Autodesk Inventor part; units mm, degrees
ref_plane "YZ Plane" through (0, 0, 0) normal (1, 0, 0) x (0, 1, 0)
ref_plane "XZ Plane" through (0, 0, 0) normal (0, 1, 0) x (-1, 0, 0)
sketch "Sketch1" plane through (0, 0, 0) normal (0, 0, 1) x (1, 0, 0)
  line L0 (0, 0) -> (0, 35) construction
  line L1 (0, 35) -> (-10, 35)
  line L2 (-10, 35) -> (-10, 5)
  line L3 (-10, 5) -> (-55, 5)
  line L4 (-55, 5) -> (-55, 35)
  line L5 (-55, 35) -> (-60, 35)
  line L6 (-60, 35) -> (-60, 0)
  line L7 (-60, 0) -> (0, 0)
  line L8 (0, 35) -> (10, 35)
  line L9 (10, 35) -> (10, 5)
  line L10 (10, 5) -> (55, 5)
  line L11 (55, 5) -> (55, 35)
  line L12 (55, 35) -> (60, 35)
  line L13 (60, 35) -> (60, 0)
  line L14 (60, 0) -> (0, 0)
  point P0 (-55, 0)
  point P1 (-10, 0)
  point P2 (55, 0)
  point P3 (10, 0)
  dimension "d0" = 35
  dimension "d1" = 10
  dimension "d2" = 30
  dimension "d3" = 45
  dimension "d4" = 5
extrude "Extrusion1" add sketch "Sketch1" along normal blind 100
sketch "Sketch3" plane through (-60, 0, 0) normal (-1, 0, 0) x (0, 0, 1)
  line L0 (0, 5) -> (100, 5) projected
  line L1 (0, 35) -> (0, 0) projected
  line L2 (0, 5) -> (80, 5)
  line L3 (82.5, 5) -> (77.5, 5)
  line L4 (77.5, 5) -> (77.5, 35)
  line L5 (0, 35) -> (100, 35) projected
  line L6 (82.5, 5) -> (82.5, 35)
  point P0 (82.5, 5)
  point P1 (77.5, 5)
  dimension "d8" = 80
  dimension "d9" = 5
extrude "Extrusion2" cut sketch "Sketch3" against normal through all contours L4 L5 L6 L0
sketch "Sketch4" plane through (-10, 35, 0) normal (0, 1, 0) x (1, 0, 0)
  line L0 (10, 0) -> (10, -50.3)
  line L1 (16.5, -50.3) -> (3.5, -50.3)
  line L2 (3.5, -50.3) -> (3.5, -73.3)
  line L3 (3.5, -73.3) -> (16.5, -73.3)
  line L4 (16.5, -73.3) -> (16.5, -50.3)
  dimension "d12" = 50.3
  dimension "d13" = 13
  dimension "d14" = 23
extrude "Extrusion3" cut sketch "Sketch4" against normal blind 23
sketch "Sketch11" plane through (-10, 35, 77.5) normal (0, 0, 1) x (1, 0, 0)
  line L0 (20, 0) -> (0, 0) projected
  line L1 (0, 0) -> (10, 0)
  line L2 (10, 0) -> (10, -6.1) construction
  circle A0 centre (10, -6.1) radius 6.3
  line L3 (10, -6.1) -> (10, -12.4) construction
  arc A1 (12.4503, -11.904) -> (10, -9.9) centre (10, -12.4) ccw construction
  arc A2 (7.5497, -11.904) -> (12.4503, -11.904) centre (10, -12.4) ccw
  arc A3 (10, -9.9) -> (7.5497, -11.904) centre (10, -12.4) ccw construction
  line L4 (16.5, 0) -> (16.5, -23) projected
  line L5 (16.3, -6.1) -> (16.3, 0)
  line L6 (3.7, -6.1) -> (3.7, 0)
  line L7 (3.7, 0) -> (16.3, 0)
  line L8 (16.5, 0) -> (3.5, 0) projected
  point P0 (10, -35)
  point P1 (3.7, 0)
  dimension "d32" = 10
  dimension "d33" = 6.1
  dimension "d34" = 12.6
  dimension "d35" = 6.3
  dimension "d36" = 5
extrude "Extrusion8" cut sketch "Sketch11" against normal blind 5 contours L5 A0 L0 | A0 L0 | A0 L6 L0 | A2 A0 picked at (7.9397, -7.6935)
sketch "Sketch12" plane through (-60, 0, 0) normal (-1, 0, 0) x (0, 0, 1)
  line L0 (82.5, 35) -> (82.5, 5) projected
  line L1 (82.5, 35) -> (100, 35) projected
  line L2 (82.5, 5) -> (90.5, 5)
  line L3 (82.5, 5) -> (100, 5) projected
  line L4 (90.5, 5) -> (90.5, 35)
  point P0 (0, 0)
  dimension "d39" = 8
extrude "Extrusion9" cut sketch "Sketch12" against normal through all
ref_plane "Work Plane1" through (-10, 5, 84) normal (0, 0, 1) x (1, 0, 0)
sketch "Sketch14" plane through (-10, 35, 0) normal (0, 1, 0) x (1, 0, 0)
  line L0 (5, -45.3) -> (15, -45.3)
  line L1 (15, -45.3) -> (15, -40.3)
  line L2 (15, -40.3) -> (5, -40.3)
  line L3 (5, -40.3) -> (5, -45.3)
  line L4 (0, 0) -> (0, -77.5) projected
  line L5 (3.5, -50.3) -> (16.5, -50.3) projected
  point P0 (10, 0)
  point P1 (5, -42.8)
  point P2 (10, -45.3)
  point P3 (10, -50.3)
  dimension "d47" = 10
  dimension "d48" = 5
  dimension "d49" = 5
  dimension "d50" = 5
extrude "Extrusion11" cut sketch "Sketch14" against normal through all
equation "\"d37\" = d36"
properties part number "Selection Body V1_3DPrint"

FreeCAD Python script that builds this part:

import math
import FreeCAD as App
import Part
import Sketcher
from FreeCAD import Vector

doc = App.newDocument("Part")
params = doc.addObject("Spreadsheet::Sheet", "Params")
for row, (alias, value) in enumerate([
    ("sketch1_width", "45 mm"),
    ("sketch1_width2", "5 mm"),
    ("sketch1_height", "30 mm"),
    ("sketch1_height2", "35 mm"),
    ("pad1_length", "100 mm"),
    ("sketch2_height", "5 mm"),
    ("sketch2_width", "30 mm"),
    ("sketch3_width", "13 mm"),
    ("sketch3_height", "23 mm"),
    ("pocket2_length", "23 mm"),
    ("sketch4_radius", "6.3 mm"),
    ("sketch4_radius2", "2.5 mm"),
    ("sketch4_height", "6.1 mm"),
    ("pocket3_length", "5 mm"),
    ("sketch5_height", "8 mm"),
    ("sketch5_width", "30 mm"),
    ("sketch6_width", "10 mm"),
    ("sketch6_height", "5 mm"),
], start=1):
    params.set(f"A{row}", alias)
    params.set(f"B{row}", "=" + value)
    params.setAlias(f"B{row}", alias)

body = doc.addObject("PartDesign::Body", "Body")

# Sketch on XY plane
sketch1 = body.newObject("Sketcher::SketchObject", "Sketch")
sketch1.AttachmentSupport = (doc.getObject("XY_Plane"), [""])
sketch1.MapMode = "FlatFace"
sketch1.addGeometry(Part.LineSegment(Vector(10, 35, 0), Vector(-10, 35, 0)), False)
sketch1.addGeometry(Part.LineSegment(Vector(-10, 35, 0), Vector(-10, 5, 0)), False)
sketch1.addGeometry(Part.LineSegment(Vector(-10, 5, 0), Vector(-55, 5, 0)), False)
sketch1.addGeometry(Part.LineSegment(Vector(-55, 5, 0), Vector(-55, 35, 0)), False)
sketch1.addGeometry(Part.LineSegment(Vector(-55, 35, 0), Vector(-60, 35, 0)), False)
sketch1.addGeometry(Part.LineSegment(Vector(-60, 35, 0), Vector(-60, 0, 0)), False)
sketch1.addGeometry(Part.LineSegment(Vector(-60, 0, 0), Vector(60, 0, 0)), False)
sketch1.addGeometry(Part.LineSegment(Vector(60, 0, 0), Vector(60, 35, 0)), False)
sketch1.addGeometry(Part.LineSegment(Vector(60, 35, 0), Vector(55, 35, 0)), False)
sketch1.addGeometry(Part.LineSegment(Vector(55, 35, 0), Vector(55, 5, 0)), False)
sketch1.addGeometry(Part.LineSegment(Vector(55, 5, 0), Vector(10, 5, 0)), False)
sketch1.addGeometry(Part.LineSegment(Vector(10, 5, 0), Vector(10, 35, 0)), False)
sketch1.addConstraint(Sketcher.Constraint("Coincident", 0, 2, 1, 1))
sketch1.addConstraint(Sketcher.Constraint("Coincident", 1, 2, 2, 1))
sketch1.addConstraint(Sketcher.Constraint("Coincident", 2, 2, 3, 1))
sketch1.addConstraint(Sketcher.Constraint("Coincident", 3, 2, 4, 1))
sketch1.addConstraint(Sketcher.Constraint("Coincident", 4, 2, 5, 1))
sketch1.addConstraint(Sketcher.Constraint("Coincident", 5, 2, 6, 1))
sketch1.addConstraint(Sketcher.Constraint("Coincident", 6, 2, 7, 1))
sketch1.addConstraint(Sketcher.Constraint("Coincident", 7, 2, 8, 1))
sketch1.addConstraint(Sketcher.Constraint("Coincident", 8, 2, 9, 1))
sketch1.addConstraint(Sketcher.Constraint("Coincident", 9, 2, 10, 1))
sketch1.addConstraint(Sketcher.Constraint("Coincident", 10, 2, 11, 1))
sketch1.addConstraint(Sketcher.Constraint("Coincident", 11, 2, 0, 1))
sketch1.addConstraint(Sketcher.Constraint("Horizontal", 0))
sketch1.addConstraint(Sketcher.Constraint("Vertical", 1))
sketch1.addConstraint(Sketcher.Constraint("Horizontal", 2))
sketch1.addConstraint(Sketcher.Constraint("Vertical", 3))
sketch1.addConstraint(Sketcher.Constraint("Horizontal", 4))
sketch1.addConstraint(Sketcher.Constraint("Vertical", 5))
sketch1.addConstraint(Sketcher.Constraint("Horizontal", 6))
sketch1.addConstraint(Sketcher.Constraint("Vertical", 7))
sketch1.addConstraint(Sketcher.Constraint("Horizontal", 8))
sketch1.addConstraint(Sketcher.Constraint("Vertical", 9))
sketch1.addConstraint(Sketcher.Constraint("Horizontal", 10))
sketch1.addConstraint(Sketcher.Constraint("Vertical", 11))
sketch1.addConstraint(Sketcher.Constraint("Symmetric", 5, 2, 6, 2, -1, 1))
sketch1.addConstraint(Sketcher.Constraint("Symmetric", 3, 2, 8, 2, -2))
sketch1.addConstraint(Sketcher.Constraint("Symmetric", 1, 2, 10, 2, -2))
sketch1.addConstraint(Sketcher.Constraint("Horizontal", 0, 2, 3, 2))
sketch1.addConstraint(Sketcher.Constraint("DistanceX", 2, 2, 2, 1, 45.0))
sketch1.addConstraint(Sketcher.Constraint("DistanceX", 4, 2, 4, 1, 5.0))
sketch1.addConstraint(Sketcher.Constraint("DistanceY", 1, 2, 1, 1, 30.0))
sketch1.addConstraint(Sketcher.Constraint("DistanceY", 5, 2, 5, 1, 35.0))
sketch1.addConstraint(Sketcher.Constraint("DistanceX", 0, 2, -1, 1, 10.0))
sketch1.setExpression("Constraints[28]", "Params.sketch1_width")
sketch1.setExpression("Constraints[29]", "Params.sketch1_width2")
sketch1.setExpression("Constraints[30]", "Params.sketch1_height")
sketch1.setExpression("Constraints[31]", "Params.sketch1_height2")
pad1 = body.newObject("PartDesign::Pad", "Pad")
pad1.Profile = sketch1
pad1.setExpression("Length", "Params.pad1_length")

# Sketch on YZ plane
sketch2 = body.newObject("Sketcher::SketchObject", "Sketch001")
sketch2.AttachmentSupport = (doc.getObject("YZ_Plane"), [""])
sketch2.MapMode = "FlatFace"
sketch2.AttachmentOffset = App.Placement(Vector(0, 0, -60), App.Rotation())
sketch2.addGeometry(Part.LineSegment(Vector(35, 77.5, 0), Vector(5, 77.5, 0)), False)
sketch2.addGeometry(Part.LineSegment(Vector(5, 77.5, 0), Vector(5, 82.5, 0)), False)
sketch2.addGeometry(Part.LineSegment(Vector(5, 82.5, 0), Vector(35, 82.5, 0)), False)
sketch2.addGeometry(Part.LineSegment(Vector(35, 82.5, 0), Vector(35, 77.5, 0)), False)
sketch2.addConstraint(Sketcher.Constraint("Coincident", 0, 2, 1, 1))
sketch2.addConstraint(Sketcher.Constraint("Coincident", 1, 2, 2, 1))
sketch2.addConstraint(Sketcher.Constraint("Coincident", 2, 2, 3, 1))
sketch2.addConstraint(Sketcher.Constraint("Coincident", 3, 2, 0, 1))
sketch2.addConstraint(Sketcher.Constraint("Horizontal", 0))
sketch2.addConstraint(Sketcher.Constraint("Vertical", 1))
sketch2.addConstraint(Sketcher.Constraint("Horizontal", 2))
sketch2.addConstraint(Sketcher.Constraint("Vertical", 3))
sketch2.addConstraint(Sketcher.Constraint("DistanceY", 1, 1, 1, 2, 5.0))
sketch2.addConstraint(Sketcher.Constraint("DistanceX", -1, 1, 0, 2, 5.0))
sketch2.addConstraint(Sketcher.Constraint("DistanceX", 0, 2, 0, 1, 30.0))
sketch2.addConstraint(Sketcher.Constraint("DistanceY", -1, 1, 0, 2, 77.5))
sketch2.setExpression("Constraints[8]", "Params.sketch2_height")
sketch2.setExpression("Constraints[10]", "Params.sketch2_width")
pocket1 = body.newObject("PartDesign::Pocket", "Pocket")
pocket1.Profile = sketch2
pocket1.Type = "ThroughAll"
pocket1.Reversed = True

# Sketch on XZ plane
sketch3 = body.newObject("Sketcher::SketchObject", "Sketch002")
sketch3.AttachmentSupport = (doc.getObject("XZ_Plane"), [""])
sketch3.MapMode = "FlatFace"
sketch3.AttachmentOffset = App.Placement(Vector(0, 0, -35), App.Rotation())
sketch3.addGeometry(Part.LineSegment(Vector(6.5, 73.3, 0), Vector(6.5, 50.3, 0)), False)
sketch3.addGeometry(Part.LineSegment(Vector(6.5, 50.3, 0), Vector(-6.5, 50.3, 0)), False)
sketch3.addGeometry(Part.LineSegment(Vector(-6.5, 50.3, 0), Vector(-6.5, 73.3, 0)), False)
sketch3.addGeometry(Part.LineSegment(Vector(-6.5, 73.3, 0), Vector(6.5, 73.3, 0)), False)
sketch3.addConstraint(Sketcher.Constraint("Coincident", 0, 2, 1, 1))
sketch3.addConstraint(Sketcher.Constraint("Coincident", 1, 2, 2, 1))
sketch3.addConstraint(Sketcher.Constraint("Coincident", 2, 2, 3, 1))
sketch3.addConstraint(Sketcher.Constraint("Coincident", 3, 2, 0, 1))
sketch3.addConstraint(Sketcher.Constraint("Vertical", 0))
sketch3.addConstraint(Sketcher.Constraint("Horizontal", 1))
sketch3.addConstraint(Sketcher.Constraint("Vertical", 2))
sketch3.addConstraint(Sketcher.Constraint("Horizontal", 3))
sketch3.addConstraint(Sketcher.Constraint("DistanceX", 1, 2, 1, 1, 13.0))
sketch3.addConstraint(Sketcher.Constraint("DistanceY", 0, 2, 0, 1, 23.0))
sketch3.addConstraint(Sketcher.Constraint("DistanceY", -1, 1, 0, 2, 50.3))
sketch3.addConstraint(Sketcher.Constraint("DistanceX", -1, 1, 0, 2, 6.5))
sketch3.setExpression("Constraints[8]", "Params.sketch3_width")
sketch3.setExpression("Constraints[9]", "Params.sketch3_height")
pocket2 = body.newObject("PartDesign::Pocket", "Pocket001")
pocket2.Profile = sketch3
pocket2.setExpression("Length", "Params.pocket2_length")
pocket2.Reversed = True

# Sketch on XY plane
sketch4 = body.newObject("Sketcher::SketchObject", "Sketch003")
sketch4.AttachmentSupport = (doc.getObject("XY_Plane"), [""])
sketch4.MapMode = "FlatFace"
sketch4.AttachmentOffset = App.Placement(Vector(0, 0, 77.5), App.Rotation())
sketch4.addGeometry(Part.LineSegment(Vector(6.3, 28.9, 0), Vector(6.3, 35, 0)), False)
sketch4.addGeometry(Part.LineSegment(Vector(6.3, 35, 0), Vector(-6.3, 35, 0)), False)
sketch4.addGeometry(Part.LineSegment(Vector(-6.3, 35, 0), Vector(-6.3, 28.9, 0)), False)
sketch4.addGeometry(Part.ArcOfCircle(Part.Circle(Vector(0, 28.9, 0), Vector(0, 0, 1), 6.3), math.radians(180), math.radians(247.111776)), False)
sketch4.addGeometry(Part.ArcOfCircle(Part.Circle(Vector(0, 22.6, 0), Vector(0, 0, 1), 2.499997), math.radians(168.556576), math.radians(371.443424)), False)
sketch4.addGeometry(Part.ArcOfCircle(Part.Circle(Vector(0, 28.9, 0), Vector(0, 0, 1), 6.3), math.radians(-67.111776), math.radians(0)), False)
sketch4.addConstraint(Sketcher.Constraint("Coincident", 0, 2, 1, 1))
sketch4.addConstraint(Sketcher.Constraint("Coincident", 1, 2, 2, 1))
sketch4.addConstraint(Sketcher.Constraint("Tangent", 2, 2, 3, 1))
sketch4.addConstraint(Sketcher.Constraint("Coincident", 3, 2, 4, 1))
sketch4.addConstraint(Sketcher.Constraint("Coincident", 4, 2, 5, 1))
sketch4.addConstraint(Sketcher.Constraint("Tangent", 5, 2, 0, 1))
sketch4.addConstraint(Sketcher.Constraint("Vertical", 0))
sketch4.addConstraint(Sketcher.Constraint("Horizontal", 1))
sketch4.addConstraint(Sketcher.Constraint("Vertical", 2))
sketch4.addConstraint(Sketcher.Constraint("Coincident", 5, 3, 3, 3))
sketch4.addConstraint(Sketcher.Constraint("Equal", 3, 5))
sketch4.addConstraint(Sketcher.Constraint("Symmetric", 3, 2, 4, 2, -2))
sketch4.addConstraint(Sketcher.Constraint("Radius", 3, 6.3))
sketch4.addConstraint(Sketcher.Constraint("Radius", 4, 2.5))
sketch4.addConstraint(Sketcher.Constraint("DistanceY", 0, 1, 0, 2, 6.1))
sketch4.addConstraint(Sketcher.Constraint("DistanceY", 4, 3, 3, 3, 6.3))
sketch4.addConstraint(Sketcher.Constraint("DistanceY", -1, 1, 0, 2, 35.0))
sketch4.setExpression("Constraints[12]", "Params.sketch4_radius")
sketch4.setExpression("Constraints[13]", "Params.sketch4_radius2")
sketch4.setExpression("Constraints[14]", "Params.sketch4_height")
pocket3 = body.newObject("PartDesign::Pocket", "Pocket002")
pocket3.Profile = sketch4
pocket3.setExpression("Length", "Params.pocket3_length")

# Sketch on YZ plane
sketch5 = body.newObject("Sketcher::SketchObject", "Sketch004")
sketch5.AttachmentSupport = (doc.getObject("YZ_Plane"), [""])
sketch5.MapMode = "FlatFace"
sketch5.AttachmentOffset = App.Placement(Vector(0, 0, -60), App.Rotation())
sketch5.addGeometry(Part.LineSegment(Vector(35, 90.5, 0), Vector(35, 82.5, 0)), False)
sketch5.addGeometry(Part.LineSegment(Vector(35, 82.5, 0), Vector(5, 82.5, 0)), False)
sketch5.addGeometry(Part.LineSegment(Vector(5, 82.5, 0), Vector(5, 90.5, 0)), False)
sketch5.addGeometry(Part.LineSegment(Vector(5, 90.5, 0), Vector(35, 90.5, 0)), False)
sketch5.addConstraint(Sketcher.Constraint("Coincident", 0, 2, 1, 1))
sketch5.addConstraint(Sketcher.Constraint("Coincident", 1, 2, 2, 1))
sketch5.addConstraint(Sketcher.Constraint("Coincident", 2, 2, 3, 1))
sketch5.addConstraint(Sketcher.Constraint("Coincident", 3, 2, 0, 1))
sketch5.addConstraint(Sketcher.Constraint("Vertical", 0))
sketch5.addConstraint(Sketcher.Constraint("Horizontal", 1))
sketch5.addConstraint(Sketcher.Constraint("Vertical", 2))
sketch5.addConstraint(Sketcher.Constraint("Horizontal", 3))
sketch5.addConstraint(Sketcher.Constraint("DistanceY", 0, 2, 0, 1, 8.0))
sketch5.addConstraint(Sketcher.Constraint("DistanceX", 1, 2, 1, 1, 30.0))
sketch5.addConstraint(Sketcher.Constraint("DistanceX", -1, 1, 0, 2, 35.0))
sketch5.addConstraint(Sketcher.Constraint("DistanceY", -1, 1, 0, 2, 82.5))
sketch5.setExpression("Constraints[8]", "Params.sketch5_height")
sketch5.setExpression("Constraints[9]", "Params.sketch5_width")
pocket4 = body.newObject("PartDesign::Pocket", "Pocket003")
pocket4.Profile = sketch5
pocket4.Type = "ThroughAll"
pocket4.Reversed = True

# Sketch on XZ plane
sketch6 = body.newObject("Sketcher::SketchObject", "Sketch005")
sketch6.AttachmentSupport = (doc.getObject("XZ_Plane"), [""])
sketch6.MapMode = "FlatFace"
sketch6.AttachmentOffset = App.Placement(Vector(0, 0, -35), App.Rotation())
sketch6.addGeometry(Part.LineSegment(Vector(-5, 40.3, 0), Vector(-5, 45.3, 0)), False)
sketch6.addGeometry(Part.LineSegment(Vector(-5, 45.3, 0), Vector(5, 45.3, 0)), False)
sketch6.addGeometry(Part.LineSegment(Vector(5, 45.3, 0), Vector(5, 40.3, 0)), False)
sketch6.addGeometry(Part.LineSegment(Vector(5, 40.3, 0), Vector(-5, 40.3, 0)), False)
sketch6.addConstraint(Sketcher.Constraint("Coincident", 0, 2, 1, 1))
sketch6.addConstraint(Sketcher.Constraint("Coincident", 1, 2, 2, 1))
sketch6.addConstraint(Sketcher.Constraint("Coincident", 2, 2, 3, 1))
sketch6.addConstraint(Sketcher.Constraint("Coincident", 3, 2, 0, 1))
sketch6.addConstraint(Sketcher.Constraint("Vertical", 0))
sketch6.addConstraint(Sketcher.Constraint("Horizontal", 1))
sketch6.addConstraint(Sketcher.Constraint("Vertical", 2))
sketch6.addConstraint(Sketcher.Constraint("Horizontal", 3))
sketch6.addConstraint(Sketcher.Constraint("DistanceX", 1, 1, 1, 2, 10.0))
sketch6.addConstraint(Sketcher.Constraint("DistanceY", 0, 1, 0, 2, 5.0))
sketch6.addConstraint(Sketcher.Constraint("DistanceX", 0, 2, -1, 1, 5.0))
sketch6.addConstraint(Sketcher.Constraint("DistanceY", -1, 1, 0, 2, 45.3))
sketch6.setExpression("Constraints[8]", "Params.sketch6_width")
sketch6.setExpression("Constraints[9]", "Params.sketch6_height")
pocket5 = body.newObject("PartDesign::Pocket", "Pocket004")
pocket5.Profile = sketch6
pocket5.Type = "ThroughAll"
pocket5.Reversed = True

doc.recompute()
